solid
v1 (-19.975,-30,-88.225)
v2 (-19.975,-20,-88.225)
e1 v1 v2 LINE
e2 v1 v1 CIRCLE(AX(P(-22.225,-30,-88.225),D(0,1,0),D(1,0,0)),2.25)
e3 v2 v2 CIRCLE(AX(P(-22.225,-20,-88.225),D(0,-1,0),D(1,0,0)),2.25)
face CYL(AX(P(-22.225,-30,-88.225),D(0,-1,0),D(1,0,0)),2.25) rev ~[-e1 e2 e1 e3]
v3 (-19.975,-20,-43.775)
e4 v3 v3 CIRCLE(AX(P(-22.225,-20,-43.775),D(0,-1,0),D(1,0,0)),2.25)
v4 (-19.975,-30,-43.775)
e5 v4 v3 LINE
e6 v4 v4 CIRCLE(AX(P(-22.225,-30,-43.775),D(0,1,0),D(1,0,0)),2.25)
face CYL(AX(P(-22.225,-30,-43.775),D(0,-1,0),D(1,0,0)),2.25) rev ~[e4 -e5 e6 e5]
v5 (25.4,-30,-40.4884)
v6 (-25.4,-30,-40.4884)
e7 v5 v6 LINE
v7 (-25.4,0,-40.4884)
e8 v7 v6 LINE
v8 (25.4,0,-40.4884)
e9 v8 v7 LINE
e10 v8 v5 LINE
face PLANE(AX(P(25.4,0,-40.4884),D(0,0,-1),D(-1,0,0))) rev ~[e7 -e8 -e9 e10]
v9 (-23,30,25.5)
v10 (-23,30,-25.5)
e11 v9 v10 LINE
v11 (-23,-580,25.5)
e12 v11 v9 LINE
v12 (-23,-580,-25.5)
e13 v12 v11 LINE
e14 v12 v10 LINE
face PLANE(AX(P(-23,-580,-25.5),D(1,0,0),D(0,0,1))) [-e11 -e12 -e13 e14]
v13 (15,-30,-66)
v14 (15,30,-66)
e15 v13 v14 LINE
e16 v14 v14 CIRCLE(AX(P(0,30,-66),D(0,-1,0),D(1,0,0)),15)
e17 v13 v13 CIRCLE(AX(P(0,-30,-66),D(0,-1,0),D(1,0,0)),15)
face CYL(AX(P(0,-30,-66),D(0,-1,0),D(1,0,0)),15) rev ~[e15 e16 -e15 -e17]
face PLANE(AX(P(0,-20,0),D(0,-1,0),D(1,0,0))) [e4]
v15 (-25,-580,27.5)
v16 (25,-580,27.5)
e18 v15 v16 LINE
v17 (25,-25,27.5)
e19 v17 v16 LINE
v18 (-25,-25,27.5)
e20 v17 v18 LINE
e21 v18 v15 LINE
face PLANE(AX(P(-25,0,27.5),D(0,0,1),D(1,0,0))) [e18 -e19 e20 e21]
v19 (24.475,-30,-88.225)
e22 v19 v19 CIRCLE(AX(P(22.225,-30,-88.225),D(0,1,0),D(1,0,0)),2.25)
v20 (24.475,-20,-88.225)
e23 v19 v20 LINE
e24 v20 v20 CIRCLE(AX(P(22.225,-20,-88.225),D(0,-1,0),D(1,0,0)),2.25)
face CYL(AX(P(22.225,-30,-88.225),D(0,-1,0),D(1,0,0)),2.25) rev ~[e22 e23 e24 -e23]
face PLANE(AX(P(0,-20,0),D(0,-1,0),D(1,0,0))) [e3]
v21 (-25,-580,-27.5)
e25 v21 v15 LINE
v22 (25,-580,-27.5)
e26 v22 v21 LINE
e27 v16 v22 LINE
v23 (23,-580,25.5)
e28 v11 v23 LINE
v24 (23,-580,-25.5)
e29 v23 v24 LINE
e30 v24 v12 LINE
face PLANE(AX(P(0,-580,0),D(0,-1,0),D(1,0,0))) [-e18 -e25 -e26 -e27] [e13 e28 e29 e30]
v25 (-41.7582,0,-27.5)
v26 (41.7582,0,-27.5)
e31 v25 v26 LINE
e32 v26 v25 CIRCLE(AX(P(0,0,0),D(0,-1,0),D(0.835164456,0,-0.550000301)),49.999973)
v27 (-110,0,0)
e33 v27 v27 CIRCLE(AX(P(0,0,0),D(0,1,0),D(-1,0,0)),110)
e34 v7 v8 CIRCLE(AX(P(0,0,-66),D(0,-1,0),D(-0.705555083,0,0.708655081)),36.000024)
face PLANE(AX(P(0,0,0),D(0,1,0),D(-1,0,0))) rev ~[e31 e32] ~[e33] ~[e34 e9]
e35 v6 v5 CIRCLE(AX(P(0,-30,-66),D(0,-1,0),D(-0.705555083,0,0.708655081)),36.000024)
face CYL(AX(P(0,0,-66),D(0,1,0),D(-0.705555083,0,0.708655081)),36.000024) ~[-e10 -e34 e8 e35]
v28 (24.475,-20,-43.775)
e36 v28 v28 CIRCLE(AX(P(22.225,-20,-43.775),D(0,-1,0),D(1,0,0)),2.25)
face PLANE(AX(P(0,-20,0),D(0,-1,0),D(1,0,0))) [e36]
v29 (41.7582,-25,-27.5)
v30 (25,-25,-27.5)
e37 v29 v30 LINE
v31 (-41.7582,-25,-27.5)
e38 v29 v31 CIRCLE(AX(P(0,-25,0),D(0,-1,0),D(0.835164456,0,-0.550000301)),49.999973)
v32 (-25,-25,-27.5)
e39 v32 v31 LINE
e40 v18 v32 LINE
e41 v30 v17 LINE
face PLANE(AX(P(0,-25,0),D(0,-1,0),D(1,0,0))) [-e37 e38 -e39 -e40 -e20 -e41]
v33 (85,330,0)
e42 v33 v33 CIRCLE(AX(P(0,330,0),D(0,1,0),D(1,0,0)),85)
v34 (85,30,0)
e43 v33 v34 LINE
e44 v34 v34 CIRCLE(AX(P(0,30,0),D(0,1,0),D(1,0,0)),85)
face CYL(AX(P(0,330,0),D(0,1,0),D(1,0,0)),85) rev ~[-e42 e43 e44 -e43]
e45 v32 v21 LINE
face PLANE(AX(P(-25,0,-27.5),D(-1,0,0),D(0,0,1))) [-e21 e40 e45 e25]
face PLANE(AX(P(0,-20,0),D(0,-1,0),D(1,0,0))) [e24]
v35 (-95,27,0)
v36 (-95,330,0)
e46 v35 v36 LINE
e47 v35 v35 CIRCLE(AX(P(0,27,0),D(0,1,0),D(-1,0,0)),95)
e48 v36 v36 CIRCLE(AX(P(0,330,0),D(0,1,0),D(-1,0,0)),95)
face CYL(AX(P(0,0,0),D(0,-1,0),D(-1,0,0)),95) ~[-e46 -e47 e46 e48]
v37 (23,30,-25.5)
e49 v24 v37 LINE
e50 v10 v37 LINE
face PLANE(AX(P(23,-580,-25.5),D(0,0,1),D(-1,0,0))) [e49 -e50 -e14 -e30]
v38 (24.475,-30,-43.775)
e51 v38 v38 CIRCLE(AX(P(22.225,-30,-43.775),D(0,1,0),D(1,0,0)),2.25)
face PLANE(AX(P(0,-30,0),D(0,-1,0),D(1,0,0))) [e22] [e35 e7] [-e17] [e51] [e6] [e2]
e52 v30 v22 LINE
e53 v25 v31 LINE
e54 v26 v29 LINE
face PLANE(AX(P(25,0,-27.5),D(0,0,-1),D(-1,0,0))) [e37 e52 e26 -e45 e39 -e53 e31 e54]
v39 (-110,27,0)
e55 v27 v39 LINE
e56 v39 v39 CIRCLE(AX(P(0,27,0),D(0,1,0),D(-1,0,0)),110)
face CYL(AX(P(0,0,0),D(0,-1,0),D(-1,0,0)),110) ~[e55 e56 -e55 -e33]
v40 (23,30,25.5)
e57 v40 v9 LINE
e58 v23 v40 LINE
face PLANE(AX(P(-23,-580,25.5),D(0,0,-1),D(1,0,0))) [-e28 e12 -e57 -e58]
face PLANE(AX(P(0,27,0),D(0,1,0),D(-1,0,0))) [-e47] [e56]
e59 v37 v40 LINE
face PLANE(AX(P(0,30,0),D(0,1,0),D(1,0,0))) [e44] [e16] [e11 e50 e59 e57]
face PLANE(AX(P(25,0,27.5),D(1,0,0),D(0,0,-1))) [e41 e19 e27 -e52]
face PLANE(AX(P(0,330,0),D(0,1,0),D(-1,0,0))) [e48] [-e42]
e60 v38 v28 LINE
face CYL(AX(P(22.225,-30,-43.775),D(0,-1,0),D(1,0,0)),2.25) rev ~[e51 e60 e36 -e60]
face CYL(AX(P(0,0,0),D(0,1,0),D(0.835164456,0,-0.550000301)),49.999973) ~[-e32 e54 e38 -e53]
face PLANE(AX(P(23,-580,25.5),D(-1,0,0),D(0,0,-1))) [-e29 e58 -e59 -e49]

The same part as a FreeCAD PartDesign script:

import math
import FreeCAD as App
import Part
import Sketcher
from FreeCAD import Vector
Q = App.Units.Quantity


def add_polygon(sketch, points):
    """Adds a closed chain of lines whose ends are joined by coincident constraints."""
    first, n = sketch.GeometryCount, len(points)
    for a, b in zip(points, points[1:] + points[:1]):
        sketch.addGeometry(Part.LineSegment(App.Vector(*a, 0), App.Vector(*b, 0)), False)
    for i in range(n):
        sketch.addConstraint(Sketcher.Constraint("Coincident", first + i, 2, first + (i + 1) % n, 1))

doc = App.newDocument("Part")
body = doc.addObject("PartDesign::Body", "Body")

# Sketch on XZ plane
sketch1 = body.newObject("Sketcher::SketchObject", "Sketch")
sketch1.AttachmentSupport = (doc.getObject("XZ_Plane"), [""])
sketch1.MapMode = "FlatFace"
sketch1.addGeometry(Part.Circle(Vector(0, 0, 0), Vector(0, 0, 1), 95), False)
sketch1.addConstraint([
    Sketcher.Constraint("Coincident", 0, 3, -1, 1),
    Sketcher.Constraint("Diameter", 0, Q("190 mm")),
])
pad1 = body.newObject("PartDesign::Pad", "Pad")
pad1.Profile = sketch1
pad1.Length = 330
pad1.Reversed = True

# Sketch on XZ plane
sketch2 = body.newObject("Sketcher::SketchObject", "Sketch001")
sketch2.AttachmentSupport = (doc.getObject("XZ_Plane"), [""])
sketch2.MapMode = "FlatFace"
sketch2.addGeometry([
    Part.Circle(Vector(0, 0, 0), Vector(0, 0, 1), 110),
    Part.Circle(Vector(0, 0, 0), Vector(0, 0, 1), 95),
], False)
sketch2.addConstraint([
    Sketcher.Constraint("Coincident", 0, 3, -1, 1),
    Sketcher.Constraint("Coincident", 1, 3, -1, 1),
    Sketcher.Constraint("Diameter", 0, Q("220 mm")),
    Sketcher.Constraint("Diameter", 1, Q("190 mm")),
])
pad2 = body.newObject("PartDesign::Pad", "Pad001")
pad2.Profile = sketch2
pad2.Length = 27
pad2.Reversed = True

# Sketch on XZ plane
sketch3 = body.newObject("Sketcher::SketchObject", "Sketch002")
sketch3.AttachmentSupport = (doc.getObject("XZ_Plane"), [""])
sketch3.MapMode = "FlatFace"
sketch3.AttachmentOffset = App.Placement(Vector(0, 0, -330), App.Rotation())
sketch3.addGeometry(Part.Circle(Vector(0, 0, 0), Vector(0, 0, 1), 85), False)
sketch3.addConstraint([
    Sketcher.Constraint("Coincident", 0, 3, -1, 1),
    Sketcher.Constraint("Diameter", 0, Q("170 mm")),
])
pocket1 = body.newObject("PartDesign::Pocket", "Pocket")
pocket1.Profile = sketch3
pocket1.Length = 300
pocket1.Reversed = True

# Sketch on XZ plane
sketch4 = body.newObject("Sketcher::SketchObject", "Sketch003")
sketch4.AttachmentSupport = (doc.getObject("XZ_Plane"), [""])
sketch4.MapMode = "FlatFace"
sketch4.addGeometry([
    Part.ArcOfCircle(Part.Circle(Vector(0, 0, 0), Vector(0, 0, 1), 49.999973), math.radians(-33.367034), math.radians(213.367034)),
    Part.LineSegment(Vector(-41.7582, -27.5, 0), Vector(41.7582, -27.5, 0)),
], False)
sketch4.addConstraint([
    Sketcher.Constraint("Coincident", 0, 1, 1, 2),
    Sketcher.Constraint("Coincident", 1, 1, 0, 2),
    Sketcher.Constraint("Horizontal", 1),
    Sketcher.Constraint("Coincident", 0, 3, -1, 1),
    Sketcher.Constraint("Radius", 0, Q("50 mm")),
    Sketcher.Constraint("DistanceY", 0, 1, -1, 1, Q("27.5 mm")),
])
pad3 = body.newObject("PartDesign::Pad", "Pad002")
pad3.Profile = sketch4
pad3.Length = 25

# Sketch on XZ plane
sketch5 = body.newObject("Sketcher::SketchObject", "Sketch004")
sketch5.AttachmentSupport = (doc.getObject("XZ_Plane"), [""])
sketch5.MapMode = "FlatFace"
add_polygon(sketch5, [(-25, -27.5), (25, -27.5), (25, 27.5), (-25, 27.5)])  # lines 0-3
sketch5.addConstraint([
    Sketcher.Constraint("Horizontal", 0),
    Sketcher.Constraint("Vertical", 1),
    Sketcher.Constraint("Horizontal", 2),
    Sketcher.Constraint("Vertical", 3),
    Sketcher.Constraint("Symmetric", 0, 2, 2, 2, -1, 1),
    Sketcher.Constraint("DistanceX", 0, 1, 0, 2, Q("50 mm")),
    Sketcher.Constraint("DistanceY", 1, 1, 1, 2, Q("55 mm")),
])
pad4 = body.newObject("PartDesign::Pad", "Pad003")
pad4.Profile = sketch5
pad4.Length = 580

# Sketch on XZ plane
sketch6 = body.newObject("Sketcher::SketchObject", "Sketch005")
sketch6.AttachmentSupport = (doc.getObject("XZ_Plane"), [""])
sketch6.MapMode = "FlatFace"
sketch6.addGeometry([
    Part.LineSegment(Vector(25.4, -40.4884, 0), Vector(-25.4, -40.4884, 0)),
    Part.ArcOfCircle(Part.Circle(Vector(0, -66, 0), Vector(0, 0, 1), 36.000024), math.radians(134.874406), math.radians(405.125594)),
], False)
sketch6.addConstraint([
    Sketcher.Constraint("Coincident", 0, 1, 1, 2),
    Sketcher.Constraint("Coincident", 1, 1, 0, 2),
    Sketcher.Constraint("Horizontal", 0),
    Sketcher.Constraint("PointOnObject", 1, 3, -2),
    Sketcher.Constraint("Radius", 1, Q("36 mm")),
    Sketcher.Constraint("DistanceY", 1, 3, -1, 1, Q("66 mm")),
    Sketcher.Constraint("DistanceX", 0, 2, 0, 1, Q("50.8 mm")),
])
pad5 = body.newObject("PartDesign::Pad", "Pad004")
pad5.Profile = sketch6
pad5.Length = 30

# Sketch on XZ plane
sketch7 = body.newObject("Sketcher::SketchObject", "Sketch006")
sketch7.AttachmentSupport = (doc.getObject("XZ_Plane"), [""])
sketch7.MapMode = "FlatFace"
sketch7.AttachmentOffset = App.Placement(Vector(0, 0, 580), App.Rotation())
add_polygon(sketch7, [(23, -25.5), (23, 25.5), (-23, 25.5), (-23, -25.5)])  # lines 0-3
sketch7.addConstraint([
    Sketcher.Constraint("Vertical", 0),
    Sketcher.Constraint("Horizontal", 1),
    Sketcher.Constraint("Vertical", 2),
    Sketcher.Constraint("Horizontal", 3),
    Sketcher.Constraint("Symmetric", 0, 2, 2, 2, -1, 1),
    Sketcher.Constraint("DistanceX", 1, 2, 1, 1, Q("46 mm")),
    Sketcher.Constraint("DistanceY", 0, 1, 0, 2, Q("51 mm")),
])
pocket2 = body.newObject("PartDesign::Pocket", "Pocket001")
pocket2.Profile = sketch7
pocket2.Type = "ThroughAll"

# Sketch on XZ plane
sketch8 = body.newObject("Sketcher::SketchObject", "Sketch007")
sketch8.AttachmentSupport = (doc.getObject("XZ_Plane"), [""])
sketch8.MapMode = "FlatFace"
sketch8.AttachmentOffset = App.Placement(Vector(0, 0, 30), App.Rotation())
sketch8.addGeometry([
    Part.Circle(Vector(-22.225, -43.775, 0), Vector(0, 0, 1), 2.25),
    Part.Circle(Vector(22.225, -43.775, 0), Vector(0, 0, 1), 2.25),
    Part.Circle(Vector(-22.225, -88.225, 0), Vector(0, 0, 1), 2.25),
    Part.Circle(Vector(22.225, -88.225, 0), Vector(0, 0, 1), 2.25),
], False)
sketch8.addConstraint([
    Sketcher.Constraint("Equal", 0, 1),
    Sketcher.Constraint("Equal", 1, 2),
    Sketcher.Constraint("Equal", 2, 3),
    Sketcher.Constraint("Symmetric", 0, 3, 1, 3, -2),
    Sketcher.Constraint("Symmetric", 2, 3, 3, 3, -2),
    Sketcher.Constraint("Vertical", 0, 3, 2, 3),
    Sketcher.Constraint("Diameter", 0, Q("4.5 mm")),
    Sketcher.Constraint("DistanceX", 0, 3, 1, 3, Q("44.45 mm")),
    Sketcher.Constraint("DistanceY", 2, 3, 0, 3, Q("44.45 mm")),
    Sketcher.Constraint("DistanceY", 0, 3, -1, 1, Q("43.775 mm")),
])
pocket3 = body.newObject("PartDesign::Pocket", "Pocket002")
pocket3.Profile = sketch8
pocket3.Length = 10

# Sketch on XZ plane
sketch9 = body.newObject("Sketcher::SketchObject", "Sketch008")
sketch9.AttachmentSupport = (doc.getObject("XZ_Plane"), [""])
sketch9.MapMode = "FlatFace"
sketch9.AttachmentOffset = App.Placement(Vector(0, 0, 30), App.Rotation())
sketch9.addGeometry(Part.Circle(Vector(0, -66, 0), Vector(0, 0, 1), 15), False)
sketch9.addConstraint([
    Sketcher.Constraint("PointOnObject", 0, 3, -2),
    Sketcher.Constraint("Diameter", 0, Q("30 mm")),
    Sketcher.Constraint("DistanceY", 0, 3, -1, 1, Q("66 mm")),
])
pocket4 = body.newObject("PartDesign::Pocket", "Pocket003")
pocket4.Profile = sketch9
pocket4.Type = "ThroughAll"

doc.recompute()
